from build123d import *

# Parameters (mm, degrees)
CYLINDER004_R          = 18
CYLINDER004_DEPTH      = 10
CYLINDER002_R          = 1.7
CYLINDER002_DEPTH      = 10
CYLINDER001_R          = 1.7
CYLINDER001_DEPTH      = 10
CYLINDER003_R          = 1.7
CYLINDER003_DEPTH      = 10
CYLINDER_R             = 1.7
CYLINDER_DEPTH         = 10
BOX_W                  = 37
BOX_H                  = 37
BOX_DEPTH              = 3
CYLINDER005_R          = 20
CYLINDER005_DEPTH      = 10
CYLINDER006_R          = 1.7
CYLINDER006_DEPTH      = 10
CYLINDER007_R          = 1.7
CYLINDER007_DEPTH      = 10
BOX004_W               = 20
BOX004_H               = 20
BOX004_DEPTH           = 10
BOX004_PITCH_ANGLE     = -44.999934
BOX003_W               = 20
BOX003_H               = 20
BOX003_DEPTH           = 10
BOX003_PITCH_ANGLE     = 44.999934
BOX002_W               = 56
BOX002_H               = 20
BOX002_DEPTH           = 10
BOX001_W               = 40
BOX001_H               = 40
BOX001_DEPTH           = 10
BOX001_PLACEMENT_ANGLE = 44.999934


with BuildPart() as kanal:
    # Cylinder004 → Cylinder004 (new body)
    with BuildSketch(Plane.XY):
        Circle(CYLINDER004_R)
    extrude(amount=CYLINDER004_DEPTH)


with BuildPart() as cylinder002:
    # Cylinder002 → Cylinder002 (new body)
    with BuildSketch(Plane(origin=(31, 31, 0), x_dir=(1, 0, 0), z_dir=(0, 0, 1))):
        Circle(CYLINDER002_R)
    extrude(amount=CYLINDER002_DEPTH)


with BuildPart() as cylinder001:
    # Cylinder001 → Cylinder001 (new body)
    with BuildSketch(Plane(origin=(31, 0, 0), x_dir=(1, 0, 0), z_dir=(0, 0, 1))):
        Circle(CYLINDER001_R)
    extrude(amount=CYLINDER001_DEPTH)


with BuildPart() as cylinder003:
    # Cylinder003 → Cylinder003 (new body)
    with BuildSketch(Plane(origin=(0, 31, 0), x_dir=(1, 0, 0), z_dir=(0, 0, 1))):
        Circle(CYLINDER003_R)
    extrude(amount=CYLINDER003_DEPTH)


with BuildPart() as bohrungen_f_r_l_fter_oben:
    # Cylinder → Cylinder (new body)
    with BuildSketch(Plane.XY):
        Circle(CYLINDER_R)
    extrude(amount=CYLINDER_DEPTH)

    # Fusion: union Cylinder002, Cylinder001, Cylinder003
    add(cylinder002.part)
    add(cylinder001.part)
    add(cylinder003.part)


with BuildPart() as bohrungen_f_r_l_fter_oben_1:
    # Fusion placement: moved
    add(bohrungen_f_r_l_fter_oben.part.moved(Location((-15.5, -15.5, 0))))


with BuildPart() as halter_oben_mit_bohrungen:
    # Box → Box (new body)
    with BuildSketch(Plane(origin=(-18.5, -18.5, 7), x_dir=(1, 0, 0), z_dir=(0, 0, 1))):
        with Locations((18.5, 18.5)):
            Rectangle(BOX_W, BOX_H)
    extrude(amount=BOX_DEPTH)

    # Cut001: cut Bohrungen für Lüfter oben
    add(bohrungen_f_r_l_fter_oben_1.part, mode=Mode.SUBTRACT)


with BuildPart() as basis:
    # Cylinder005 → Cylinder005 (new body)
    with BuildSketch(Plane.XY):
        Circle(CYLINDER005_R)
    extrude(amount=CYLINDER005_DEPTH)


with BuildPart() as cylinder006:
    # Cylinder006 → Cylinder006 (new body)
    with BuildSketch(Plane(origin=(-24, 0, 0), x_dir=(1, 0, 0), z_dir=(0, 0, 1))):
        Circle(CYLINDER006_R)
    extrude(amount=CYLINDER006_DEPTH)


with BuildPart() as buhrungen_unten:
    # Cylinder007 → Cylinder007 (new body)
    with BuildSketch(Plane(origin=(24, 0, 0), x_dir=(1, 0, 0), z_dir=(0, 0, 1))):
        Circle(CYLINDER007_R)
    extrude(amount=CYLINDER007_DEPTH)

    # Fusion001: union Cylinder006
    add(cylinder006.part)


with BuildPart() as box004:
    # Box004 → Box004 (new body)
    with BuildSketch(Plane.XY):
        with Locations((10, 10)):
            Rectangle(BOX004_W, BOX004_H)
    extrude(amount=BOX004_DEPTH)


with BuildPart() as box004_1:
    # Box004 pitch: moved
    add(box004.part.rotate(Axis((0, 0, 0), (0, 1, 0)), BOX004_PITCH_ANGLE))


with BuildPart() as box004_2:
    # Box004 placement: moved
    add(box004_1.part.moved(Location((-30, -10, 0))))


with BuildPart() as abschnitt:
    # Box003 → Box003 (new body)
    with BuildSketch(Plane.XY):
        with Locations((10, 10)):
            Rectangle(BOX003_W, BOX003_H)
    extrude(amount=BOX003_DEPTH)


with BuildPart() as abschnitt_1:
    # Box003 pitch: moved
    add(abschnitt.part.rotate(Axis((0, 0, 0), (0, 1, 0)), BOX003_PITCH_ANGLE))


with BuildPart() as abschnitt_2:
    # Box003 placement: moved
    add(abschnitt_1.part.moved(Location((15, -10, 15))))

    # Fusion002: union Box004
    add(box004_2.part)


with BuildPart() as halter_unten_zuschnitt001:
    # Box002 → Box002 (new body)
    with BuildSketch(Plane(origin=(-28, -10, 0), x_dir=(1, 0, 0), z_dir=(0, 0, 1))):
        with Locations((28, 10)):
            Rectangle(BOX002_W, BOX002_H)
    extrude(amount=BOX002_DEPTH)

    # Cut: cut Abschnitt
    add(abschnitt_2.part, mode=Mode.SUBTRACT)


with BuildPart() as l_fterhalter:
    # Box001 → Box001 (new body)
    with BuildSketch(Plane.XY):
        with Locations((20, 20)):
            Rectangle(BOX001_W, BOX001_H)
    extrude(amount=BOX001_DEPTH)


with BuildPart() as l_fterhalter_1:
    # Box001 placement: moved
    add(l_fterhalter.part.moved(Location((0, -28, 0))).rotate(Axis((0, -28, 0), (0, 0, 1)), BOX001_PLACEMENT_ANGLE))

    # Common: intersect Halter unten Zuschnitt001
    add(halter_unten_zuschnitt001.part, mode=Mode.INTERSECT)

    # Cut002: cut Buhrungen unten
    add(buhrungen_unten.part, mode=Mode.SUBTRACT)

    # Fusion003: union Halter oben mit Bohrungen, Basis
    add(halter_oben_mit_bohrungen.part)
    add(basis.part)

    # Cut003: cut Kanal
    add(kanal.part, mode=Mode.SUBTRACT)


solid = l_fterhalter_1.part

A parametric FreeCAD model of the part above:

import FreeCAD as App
import Part
import Sketcher

V = App.Vector
Q = App.Units.Quantity

doc = App.newDocument("Part")
params = doc.addObject("Spreadsheet::Sheet", "Params")
for row, (alias, value) in enumerate([
    ("sketch1_diameter", "36 mm"),
    ("pad1_length", "10 mm"),
    ("sketch2_diameter", "3.4 mm"),
    ("pad2_length", "10 mm"),
    ("sketch3_diameter", "3.4 mm"),
    ("pad3_length", "10 mm"),
    ("sketch4_diameter", "3.4 mm"),
    ("pad4_length", "10 mm"),
    ("sketch5_diameter", "3.4 mm"),
    ("pad5_length", "10 mm"),
    ("sketch6_width", "37 mm"),
    ("pad6_length", "3 mm"),
    ("sketch7_diameter", "40 mm"),
    ("pad7_length", "10 mm"),
    ("sketch8_diameter", "3.4 mm"),
    ("pad8_length", "10 mm"),
    ("sketch9_diameter", "3.4 mm"),
    ("pad9_length", "10 mm"),
    ("sketch10_width", "20 mm"),
    ("pad10_length", "10 mm"),
    ("sketch11_width", "20 mm"),
    ("pad11_length", "10 mm"),
    ("sketch12_width", "56 mm"),
    ("sketch12_height", "20 mm"),
    ("pad12_length", "10 mm"),
    ("sketch13_width", "40 mm"),
    ("pad13_length", "10 mm"),
], start=1):
    params.set(f"A{row}", alias)
    params.set(f"B{row}", "=" + value)
    params.setAlias(f"B{row}", alias)

body = doc.addObject("PartDesign::Body", "Body")

# Sketch on XY plane
sketch1 = body.newObject("Sketcher::SketchObject", "Sketch")
sketch1.AttachmentSupport = (doc.getObject("XY_Plane"), [""])
sketch1.MapMode = "FlatFace"
sketch1.addGeometry(Part.Circle(V(0, 0, 0), V(0, 0, 1), 18), False)
sketch1.addConstraint(Sketcher.Constraint("Coincident", 0, 3, -1, 1))
sketch1.addConstraint(Sketcher.Constraint("Diameter", 0, Q("36 mm")))
sketch1.setExpression("Constraints[1]", "Params.sketch1_diameter")
pad1 = body.newObject("PartDesign::Pad", "Pad")
pad1.Profile = sketch1
pad1.setExpression("Length", "Params.pad1_length")
body2 = doc.addObject("PartDesign::Body", "Body001")

# Sketch on XY plane
sketch2 = body2.newObject("Sketcher::SketchObject", "Sketch001")
sketch2.AttachmentSupport = (doc.getObject("XY_Plane001"), [""])
sketch2.MapMode = "FlatFace"
sketch2.addGeometry(Part.Circle(V(31, 31, 0), V(0, 0, 1), 1.7), False)
sketch2.addConstraint(Sketcher.Constraint("Diameter", 0, Q("3.4 mm")))
sketch2.addConstraint(Sketcher.Constraint("DistanceX", -1, 1, 0, 3, Q("31 mm")))
sketch2.addConstraint(Sketcher.Constraint("DistanceY", -1, 1, 0, 3, Q("31 mm")))
sketch2.setExpression("Constraints[0]", "Params.sketch2_diameter")
pad2 = body2.newObject("PartDesign::Pad", "Pad001")
pad2.Profile = sketch2
pad2.setExpression("Length", "Params.pad2_length")
body3 = doc.addObject("PartDesign::Body", "Body002")

# Sketch on XY plane
sketch3 = body3.newObject("Sketcher::SketchObject", "Sketch002")
sketch3.AttachmentSupport = (doc.getObject("XY_Plane002"), [""])
sketch3.MapMode = "FlatFace"
sketch3.addGeometry(Part.Circle(V(31, 0, 0), V(0, 0, 1), 1.7), False)
sketch3.addConstraint(Sketcher.Constraint("PointOnObject", 0, 3, -1))
sketch3.addConstraint(Sketcher.Constraint("Diameter", 0, Q("3.4 mm")))
sketch3.addConstraint(Sketcher.Constraint("DistanceX", -1, 1, 0, 3, Q("31 mm")))
sketch3.setExpression("Constraints[1]", "Params.sketch3_diameter")
pad3 = body3.newObject("PartDesign::Pad", "Pad002")
pad3.Profile = sketch3
pad3.setExpression("Length", "Params.pad3_length")
body4 = doc.addObject("PartDesign::Body", "Body003")

# Sketch on XY plane
sketch4 = body4.newObject("Sketcher::SketchObject", "Sketch003")
sketch4.AttachmentSupport = (doc.getObject("XY_Plane003"), [""])
sketch4.MapMode = "FlatFace"
sketch4.addGeometry(Part.Circle(V(0, 31, 0), V(0, 0, 1), 1.7), False)
sketch4.addConstraint(Sketcher.Constraint("PointOnObject", 0, 3, -2))
sketch4.addConstraint(Sketcher.Constraint("Diameter", 0, Q("3.4 mm")))
sketch4.addConstraint(Sketcher.Constraint("DistanceY", -1, 1, 0, 3, Q("31 mm")))
sketch4.setExpression("Constraints[1]", "Params.sketch4_diameter")
pad4 = body4.newObject("PartDesign::Pad", "Pad003")
pad4.Profile = sketch4
pad4.setExpression("Length", "Params.pad4_length")
body5 = doc.addObject("PartDesign::Body", "Body004")
body5.AllowCompound = True

# Sketch on XY plane
sketch5 = body5.newObject("Sketcher::SketchObject", "Sketch004")
sketch5.AttachmentSupport = (doc.getObject("XY_Plane004"), [""])
sketch5.MapMode = "FlatFace"
sketch5.addGeometry(Part.Circle(V(0, 0, 0), V(0, 0, 1), 1.7), False)
sketch5.addConstraint(Sketcher.Constraint("Coincident", 0, 3, -1, 1))
sketch5.addConstraint(Sketcher.Constraint("Diameter", 0, Q("3.4 mm")))
sketch5.setExpression("Constraints[1]", "Params.sketch5_diameter")
pad5 = body5.newObject("PartDesign::Pad", "Pad004")
pad5.Profile = sketch5
pad5.setExpression("Length", "Params.pad5_length")
doc.recompute()

boolean = body5.newObject("PartDesign::Boolean", "Boolean")
boolean.Type = "Fuse"
boolean.addObjects([body2])
doc.recompute()

boolean2 = body5.newObject("PartDesign::Boolean", "Boolean001")
boolean2.Type = "Fuse"
boolean2.addObjects([body3])
doc.recompute()

boolean3 = body5.newObject("PartDesign::Boolean", "Boolean002")
boolean3.Type = "Fuse"
boolean3.addObjects([body4])
body6 = doc.addObject("PartDesign::Body", "Body005")
body6.AllowCompound = True
doc.recompute()

body5.Placement = App.Placement(V(-15.5, -15.5, 0), App.Rotation(V(0, 0, 1), 0))
boolean4 = body6.newObject("PartDesign::Boolean", "Boolean003")
boolean4.Type = "Fuse"
boolean4.addObjects([body5])
body7 = doc.addObject("PartDesign::Body", "Body006")

# Sketch on XY plane
sketch6 = body7.newObject("Sketcher::SketchObject", "Sketch005")
sketch6.AttachmentSupport = (doc.getObject("XY_Plane006"), [""])
sketch6.MapMode = "FlatFace"
sketch6.AttachmentOffset = App.Placement(V(0, 0, 7), App.Rotation())
sketch6.addGeometry(Part.LineSegment(V(-18, 18, 0), V(-18, -18, 0)), False)
sketch6.addGeometry(Part.LineSegment(V(-18, -18, 0), V(18, -18, 0)), False)
sketch6.addGeometry(Part.LineSegment(V(18, -18, 0), V(18, 18, 0)), False)
sketch6.addGeometry(Part.LineSegment(V(18, 18, 0), V(-18, 18, 0)), False)
sketch6.addConstraint(Sketcher.Constraint("Coincident", 0, 2, 1, 1))
sketch6.addConstraint(Sketcher.Constraint("Coincident", 1, 2, 2, 1))
sketch6.addConstraint(Sketcher.Constraint("Coincident", 2, 2, 3, 1))
sketch6.addConstraint(Sketcher.Constraint("Coincident", 3, 2, 0, 1))
sketch6.addConstraint(Sketcher.Constraint("Vertical", 0))
sketch6.addConstraint(Sketcher.Constraint("Horizontal", 1))
sketch6.addConstraint(Sketcher.Constraint("Vertical", 2))
sketch6.addConstraint(Sketcher.Constraint("Horizontal", 3))
sketch6.addConstraint(Sketcher.Constraint("Symmetric", 0, 2, 2, 2, -1, 1))
sketch6.addConstraint(Sketcher.Constraint("Equal", 3, 0))
sketch6.addConstraint(Sketcher.Constraint("DistanceX", 1, 1, 1, 2, Q("37 mm")))
sketch6.setExpression("Constraints[10]", "Params.sketch6_width")
pad6 = body7.newObject("PartDesign::Pad", "Pad005")
pad6.Profile = sketch6
pad6.setExpression("Length", "Params.pad6_length")
doc.recompute()

boolean5 = body7.newObject("PartDesign::Boolean", "Boolean004")
boolean5.Type = "Cut"
boolean5.addObjects([body6])
body8 = doc.addObject("PartDesign::Body", "Body007")

# Sketch on XY plane
sketch7 = body8.newObject("Sketcher::SketchObject", "Sketch006")
sketch7.AttachmentSupport = (doc.getObject("XY_Plane007"), [""])
sketch7.MapMode = "FlatFace"
sketch7.addGeometry(Part.Circle(V(0, 0, 0), V(0, 0, 1), 20), False)
sketch7.addConstraint(Sketcher.Constraint("Coincident", 0, 3, -1, 1))
sketch7.addConstraint(Sketcher.Constraint("Diameter", 0, Q("40 mm")))
sketch7.setExpression("Constraints[1]", "Params.sketch7_diameter")
pad7 = body8.newObject("PartDesign::Pad", "Pad006")
pad7.Profile = sketch7
pad7.setExpression("Length", "Params.pad7_length")
body9 = doc.addObject("PartDesign::Body", "Body008")

# Sketch on XY plane
sketch8 = body9.newObject("Sketcher::SketchObject", "Sketch007")
sketch8.AttachmentSupport = (doc.getObject("XY_Plane008"), [""])
sketch8.MapMode = "FlatFace"
sketch8.addGeometry(Part.Circle(V(-24, 0, 0), V(0, 0, 1), 1.7), False)
sketch8.addConstraint(Sketcher.Constraint("PointOnObject", 0, 3, -1))
sketch8.addConstraint(Sketcher.Constraint("Diameter", 0, Q("3.4 mm")))
sketch8.addConstraint(Sketcher.Constraint("DistanceX", 0, 3, -1, 1, Q("24 mm")))
sketch8.setExpression("Constraints[1]", "Params.sketch8_diameter")
pad8 = body9.newObject("PartDesign::Pad", "Pad007")
pad8.Profile = sketch8
pad8.setExpression("Length", "Params.pad8_length")
body10 = doc.addObject("PartDesign::Body", "Body009")
body10.AllowCompound = True

# Sketch on XY plane
sketch9 = body10.newObject("Sketcher::SketchObject", "Sketch008")
sketch9.AttachmentSupport = (doc.getObject("XY_Plane009"), [""])
sketch9.MapMode = "FlatFace"
sketch9.addGeometry(Part.Circle(V(24, 0, 0), V(0, 0, 1), 1.7), False)
sketch9.addConstraint(Sketcher.Constraint("PointOnObject", 0, 3, -1))
sketch9.addConstraint(Sketcher.Constraint("Diameter", 0, Q("3.4 mm")))
sketch9.addConstraint(Sketcher.Constraint("DistanceX", -1, 1, 0, 3, Q("24 mm")))
sketch9.setExpression("Constraints[1]", "Params.sketch9_diameter")
pad9 = body10.newObject("PartDesign::Pad", "Pad008")
pad9.Profile = sketch9
pad9.setExpression("Length", "Params.pad9_length")
doc.recompute()

boolean6 = body10.newObject("PartDesign::Boolean", "Boolean005")
boolean6.Type = "Fuse"
boolean6.addObjects([body9])
body11 = doc.addObject("PartDesign::Body", "Body010")

# Sketch on XY plane
sketch10 = body11.newObject("Sketcher::SketchObject", "Sketch009")
sketch10.AttachmentSupport = (doc.getObject("XY_Plane010"), [""])
sketch10.MapMode = "FlatFace"
sketch10.addGeometry(Part.LineSegment(V(0, 20, 0), V(0, 0, 0)), False)
sketch10.addGeometry(Part.LineSegment(V(0, 0, 0), V(20, 0, 0)), False)
sketch10.addGeometry(Part.LineSegment(V(20, 0, 0), V(20, 20, 0)), False)
sketch10.addGeometry(Part.LineSegment(V(20, 20, 0), V(0, 20, 0)), False)
sketch10.addConstraint(Sketcher.Constraint("Coincident", 0, 2, 1, 1))
sketch10.addConstraint(Sketcher.Constraint("Coincident", 1, 2, 2, 1))
sketch10.addConstraint(Sketcher.Constraint("Coincident", 2, 2, 3, 1))
sketch10.addConstraint(Sketcher.Constraint("Coincident", 3, 2, 0, 1))
sketch10.addConstraint(Sketcher.Constraint("Vertical", 0))
sketch10.addConstraint(Sketcher.Constraint("Horizontal", 1))
sketch10.addConstraint(Sketcher.Constraint("Vertical", 2))
sketch10.addConstraint(Sketcher.Constraint("Horizontal", 3))
sketch10.addConstraint(Sketcher.Constraint("Coincident", 0, 2, -1, 1))
sketch10.addConstraint(Sketcher.Constraint("Equal", 3, 0))
sketch10.addConstraint(Sketcher.Constraint("DistanceX", 1, 1, 1, 2, Q("20 mm")))
sketch10.setExpression("Constraints[10]", "Params.sketch10_width")
pad10 = body11.newObject("PartDesign::Pad", "Pad009")
pad10.Profile = sketch10
pad10.setExpression("Length", "Params.pad10_length")
body12 = doc.addObject("PartDesign::Body", "Body011")
doc.recompute()

body11.Placement = App.Placement(V(0, 0, 0), App.Rotation(V(0, 1, 0), 315.000066))
boolean7 = body12.newObject("PartDesign::Boolean", "Boolean006")
boolean7.Type = "Fuse"
boolean7.addObjects([body11])
body13 = doc.addObject("PartDesign::Body", "Body012")
doc.recompute()

body12.Placement = App.Placement(V(-30, -10, 0), App.Rotation(V(0, 0, 1), 0))
boolean8 = body13.newObject("PartDesign::Boolean", "Boolean007")
boolean8.Type = "Fuse"
boolean8.addObjects([body12])
body14 = doc.addObject("PartDesign::Body", "Body013")

# Sketch on XY plane
sketch11 = body14.newObject("Sketcher::SketchObject", "Sketch010")
sketch11.AttachmentSupport = (doc.getObject("XY_Plane013"), [""])
sketch11.MapMode = "FlatFace"
sketch11.addGeometry(Part.LineSegment(V(0, 20, 0), V(0, 0, 0)), False)
sketch11.addGeometry(Part.LineSegment(V(0, 0, 0), V(20, 0, 0)), False)
sketch11.addGeometry(Part.LineSegment(V(20, 0, 0), V(20, 20, 0)), False)
sketch11.addGeometry(Part.LineSegment(V(20, 20, 0), V(0, 20, 0)), False)
sketch11.addConstraint(Sketcher.Constraint("Coincident", 0, 2, 1, 1))
sketch11.addConstraint(Sketcher.Constraint("Coincident", 1, 2, 2, 1))
sketch11.addConstraint(Sketcher.Constraint("Coincident", 2, 2, 3, 1))
sketch11.addConstraint(Sketcher.Constraint("Coincident", 3, 2, 0, 1))
sketch11.addConstraint(Sketcher.Constraint("Vertical", 0))
sketch11.addConstraint(Sketcher.Constraint("Horizontal", 1))
sketch11.addConstraint(Sketcher.Constraint("Vertical", 2))
sketch11.addConstraint(Sketcher.Constraint("Horizontal", 3))
sketch11.addConstraint(Sketcher.Constraint("Coincident", 0, 2, -1, 1))
sketch11.addConstraint(Sketcher.Constraint("Equal", 3, 0))
sketch11.addConstraint(Sketcher.Constraint("DistanceX", 1, 1, 1, 2, Q("20 mm")))
sketch11.setExpression("Constraints[10]", "Params.sketch11_width")
pad11 = body14.newObject("PartDesign::Pad", "Pad010")
pad11.Profile = sketch11
pad11.setExpression("Length", "Params.pad11_length")
body15 = doc.addObject("PartDesign::Body", "Body014")
doc.recompute()

body14.Placement = App.Placement(V(0, 0, 0), App.Rotation(V(0, 1, 0), 44.999934))
boolean9 = body15.newObject("PartDesign::Boolean", "Boolean008")
boolean9.Type = "Fuse"
boolean9.addObjects([body14])
body16 = doc.addObject("PartDesign::Body", "Body015")
body16.AllowCompound = True
doc.recompute()

body15.Placement = App.Placement(V(15, -10, 15), App.Rotation(V(0, 0, 1), 0))
boolean10 = body16.newObject("PartDesign::Boolean", "Boolean009")
boolean10.Type = "Fuse"
boolean10.addObjects([body15])
doc.recompute()

boolean11 = body16.newObject("PartDesign::Boolean", "Boolean010")
boolean11.Type = "Fuse"
boolean11.addObjects([body13])
body17 = doc.addObject("PartDesign::Body", "Body016")

# Sketch on XY plane
sketch12 = body17.newObject("Sketcher::SketchObject", "Sketch011")
sketch12.AttachmentSupport = (doc.getObject("XY_Plane016"), [""])
sketch12.MapMode = "FlatFace"
sketch12.addGeometry(Part.LineSegment(V(-28, 10, 0), V(-28, -10, 0)), False)
sketch12.addGeometry(Part.LineSegment(V(-28, -10, 0), V(28, -10, 0)), False)
sketch12.addGeometry(Part.LineSegment(V(28, -10, 0), V(28, 10, 0)), False)
sketch12.addGeometry(Part.LineSegment(V(28, 10, 0), V(-28, 10, 0)), False)
sketch12.addConstraint(Sketcher.Constraint("Coincident", 0, 2, 1, 1))
sketch12.addConstraint(Sketcher.Constraint("Coincident", 1, 2, 2, 1))
sketch12.addConstraint(Sketcher.Constraint("Coincident", 2, 2, 3, 1))
sketch12.addConstraint(Sketcher.Constraint("Coincident", 3, 2, 0, 1))
sketch12.addConstraint(Sketcher.Constraint("Vertical", 0))
sketch12.addConstraint(Sketcher.Constraint("Horizontal", 1))
sketch12.addConstraint(Sketcher.Constraint("Vertical", 2))
sketch12.addConstraint(Sketcher.Constraint("Horizontal", 3))
sketch12.addConstraint(Sketcher.Constraint("Symmetric", 0, 2, 2, 2, -1, 1))
sketch12.addConstraint(Sketcher.Constraint("DistanceX", 1, 1, 1, 2, Q("56 mm")))
sketch12.addConstraint(Sketcher.Constraint("DistanceY", 0, 2, 0, 1, Q("20 mm")))
sketch12.setExpression("Constraints[9]", "Params.sketch12_width")
sketch12.setExpression("Constraints[10]", "Params.sketch12_height")
pad12 = body17.newObject("PartDesign::Pad", "Pad011")
pad12.Profile = sketch12
pad12.setExpression("Length", "Params.pad12_length")
doc.recompute()

boolean12 = body17.newObject("PartDesign::Boolean", "Boolean011")
boolean12.Type = "Cut"
boolean12.addObjects([body16])
body18 = doc.addObject("PartDesign::Body", "Body017")

# Sketch on XY plane
sketch13 = body18.newObject("Sketcher::SketchObject", "Sketch012")
sketch13.AttachmentSupport = (doc.getObject("XY_Plane017"), [""])
sketch13.MapMode = "FlatFace"
sketch13.addGeometry(Part.LineSegment(V(0, 40, 0), V(0, 0, 0)), False)
sketch13.addGeometry(Part.LineSegment(V(0, 0, 0), V(40, 0, 0)), False)
sketch13.addGeometry(Part.LineSegment(V(40, 0, 0), V(40, 40, 0)), False)
sketch13.addGeometry(Part.LineSegment(V(40, 40, 0), V(0, 40, 0)), False)
sketch13.addConstraint(Sketcher.Constraint("Coincident", 0, 2, 1, 1))
sketch13.addConstraint(Sketcher.Constraint("Coincident", 1, 2, 2, 1))
sketch13.addConstraint(Sketcher.Constraint("Coincident", 2, 2, 3, 1))
sketch13.addConstraint(Sketcher.Constraint("Coincident", 3, 2, 0, 1))
sketch13.addConstraint(Sketcher.Constraint("Vertical", 0))
sketch13.addConstraint(Sketcher.Constraint("Horizontal", 1))
sketch13.addConstraint(Sketcher.Constraint("Vertical", 2))
sketch13.addConstraint(Sketcher.Constraint("Horizontal", 3))
sketch13.addConstraint(Sketcher.Constraint("Coincident", 0, 2, -1, 1))
sketch13.addConstraint(Sketcher.Constraint("Equal", 3, 0))
sketch13.addConstraint(Sketcher.Constraint("DistanceX", 1, 1, 1, 2, Q("40 mm")))
sketch13.setExpression("Constraints[10]", "Params.sketch13_width")
pad13 = body18.newObject("PartDesign::Pad", "Pad012")
pad13.Profile = sketch13
pad13.setExpression("Length", "Params.pad13_length")
body19 = doc.addObject("PartDesign::Body", "Body018")
doc.recompute()

body18.Placement = App.Placement(V(0, -28, 0), App.Rotation(V(0, 0, 1), 44.999934))
boolean13 = body19.newObject("PartDesign::Boolean", "Boolean012")
boolean13.Type = "Fuse"
boolean13.addObjects([body18])
doc.recompute()

boolean14 = body19.newObject("PartDesign::Boolean", "Boolean013")
boolean14.Type = "Common"
boolean14.addObjects([body17])
doc.recompute()

boolean15 = body19.newObject("PartDesign::Boolean", "Boolean014")
boolean15.Type = "Cut"
boolean15.addObjects([body10])
doc.recompute()

boolean16 = body19.newObject("PartDesign::Boolean", "Boolean015")
boolean16.Type = "Fuse"
boolean16.addObjects([body7])
doc.recompute()

boolean17 = body19.newObject("PartDesign::Boolean", "Boolean016")
boolean17.Type = "Fuse"
boolean17.addObjects([body8])
doc.recompute()

boolean18 = body19.newObject("PartDesign::Boolean", "Boolean017")
boolean18.Type = "Cut"
boolean18.addObjects([body])

doc.recompute()
